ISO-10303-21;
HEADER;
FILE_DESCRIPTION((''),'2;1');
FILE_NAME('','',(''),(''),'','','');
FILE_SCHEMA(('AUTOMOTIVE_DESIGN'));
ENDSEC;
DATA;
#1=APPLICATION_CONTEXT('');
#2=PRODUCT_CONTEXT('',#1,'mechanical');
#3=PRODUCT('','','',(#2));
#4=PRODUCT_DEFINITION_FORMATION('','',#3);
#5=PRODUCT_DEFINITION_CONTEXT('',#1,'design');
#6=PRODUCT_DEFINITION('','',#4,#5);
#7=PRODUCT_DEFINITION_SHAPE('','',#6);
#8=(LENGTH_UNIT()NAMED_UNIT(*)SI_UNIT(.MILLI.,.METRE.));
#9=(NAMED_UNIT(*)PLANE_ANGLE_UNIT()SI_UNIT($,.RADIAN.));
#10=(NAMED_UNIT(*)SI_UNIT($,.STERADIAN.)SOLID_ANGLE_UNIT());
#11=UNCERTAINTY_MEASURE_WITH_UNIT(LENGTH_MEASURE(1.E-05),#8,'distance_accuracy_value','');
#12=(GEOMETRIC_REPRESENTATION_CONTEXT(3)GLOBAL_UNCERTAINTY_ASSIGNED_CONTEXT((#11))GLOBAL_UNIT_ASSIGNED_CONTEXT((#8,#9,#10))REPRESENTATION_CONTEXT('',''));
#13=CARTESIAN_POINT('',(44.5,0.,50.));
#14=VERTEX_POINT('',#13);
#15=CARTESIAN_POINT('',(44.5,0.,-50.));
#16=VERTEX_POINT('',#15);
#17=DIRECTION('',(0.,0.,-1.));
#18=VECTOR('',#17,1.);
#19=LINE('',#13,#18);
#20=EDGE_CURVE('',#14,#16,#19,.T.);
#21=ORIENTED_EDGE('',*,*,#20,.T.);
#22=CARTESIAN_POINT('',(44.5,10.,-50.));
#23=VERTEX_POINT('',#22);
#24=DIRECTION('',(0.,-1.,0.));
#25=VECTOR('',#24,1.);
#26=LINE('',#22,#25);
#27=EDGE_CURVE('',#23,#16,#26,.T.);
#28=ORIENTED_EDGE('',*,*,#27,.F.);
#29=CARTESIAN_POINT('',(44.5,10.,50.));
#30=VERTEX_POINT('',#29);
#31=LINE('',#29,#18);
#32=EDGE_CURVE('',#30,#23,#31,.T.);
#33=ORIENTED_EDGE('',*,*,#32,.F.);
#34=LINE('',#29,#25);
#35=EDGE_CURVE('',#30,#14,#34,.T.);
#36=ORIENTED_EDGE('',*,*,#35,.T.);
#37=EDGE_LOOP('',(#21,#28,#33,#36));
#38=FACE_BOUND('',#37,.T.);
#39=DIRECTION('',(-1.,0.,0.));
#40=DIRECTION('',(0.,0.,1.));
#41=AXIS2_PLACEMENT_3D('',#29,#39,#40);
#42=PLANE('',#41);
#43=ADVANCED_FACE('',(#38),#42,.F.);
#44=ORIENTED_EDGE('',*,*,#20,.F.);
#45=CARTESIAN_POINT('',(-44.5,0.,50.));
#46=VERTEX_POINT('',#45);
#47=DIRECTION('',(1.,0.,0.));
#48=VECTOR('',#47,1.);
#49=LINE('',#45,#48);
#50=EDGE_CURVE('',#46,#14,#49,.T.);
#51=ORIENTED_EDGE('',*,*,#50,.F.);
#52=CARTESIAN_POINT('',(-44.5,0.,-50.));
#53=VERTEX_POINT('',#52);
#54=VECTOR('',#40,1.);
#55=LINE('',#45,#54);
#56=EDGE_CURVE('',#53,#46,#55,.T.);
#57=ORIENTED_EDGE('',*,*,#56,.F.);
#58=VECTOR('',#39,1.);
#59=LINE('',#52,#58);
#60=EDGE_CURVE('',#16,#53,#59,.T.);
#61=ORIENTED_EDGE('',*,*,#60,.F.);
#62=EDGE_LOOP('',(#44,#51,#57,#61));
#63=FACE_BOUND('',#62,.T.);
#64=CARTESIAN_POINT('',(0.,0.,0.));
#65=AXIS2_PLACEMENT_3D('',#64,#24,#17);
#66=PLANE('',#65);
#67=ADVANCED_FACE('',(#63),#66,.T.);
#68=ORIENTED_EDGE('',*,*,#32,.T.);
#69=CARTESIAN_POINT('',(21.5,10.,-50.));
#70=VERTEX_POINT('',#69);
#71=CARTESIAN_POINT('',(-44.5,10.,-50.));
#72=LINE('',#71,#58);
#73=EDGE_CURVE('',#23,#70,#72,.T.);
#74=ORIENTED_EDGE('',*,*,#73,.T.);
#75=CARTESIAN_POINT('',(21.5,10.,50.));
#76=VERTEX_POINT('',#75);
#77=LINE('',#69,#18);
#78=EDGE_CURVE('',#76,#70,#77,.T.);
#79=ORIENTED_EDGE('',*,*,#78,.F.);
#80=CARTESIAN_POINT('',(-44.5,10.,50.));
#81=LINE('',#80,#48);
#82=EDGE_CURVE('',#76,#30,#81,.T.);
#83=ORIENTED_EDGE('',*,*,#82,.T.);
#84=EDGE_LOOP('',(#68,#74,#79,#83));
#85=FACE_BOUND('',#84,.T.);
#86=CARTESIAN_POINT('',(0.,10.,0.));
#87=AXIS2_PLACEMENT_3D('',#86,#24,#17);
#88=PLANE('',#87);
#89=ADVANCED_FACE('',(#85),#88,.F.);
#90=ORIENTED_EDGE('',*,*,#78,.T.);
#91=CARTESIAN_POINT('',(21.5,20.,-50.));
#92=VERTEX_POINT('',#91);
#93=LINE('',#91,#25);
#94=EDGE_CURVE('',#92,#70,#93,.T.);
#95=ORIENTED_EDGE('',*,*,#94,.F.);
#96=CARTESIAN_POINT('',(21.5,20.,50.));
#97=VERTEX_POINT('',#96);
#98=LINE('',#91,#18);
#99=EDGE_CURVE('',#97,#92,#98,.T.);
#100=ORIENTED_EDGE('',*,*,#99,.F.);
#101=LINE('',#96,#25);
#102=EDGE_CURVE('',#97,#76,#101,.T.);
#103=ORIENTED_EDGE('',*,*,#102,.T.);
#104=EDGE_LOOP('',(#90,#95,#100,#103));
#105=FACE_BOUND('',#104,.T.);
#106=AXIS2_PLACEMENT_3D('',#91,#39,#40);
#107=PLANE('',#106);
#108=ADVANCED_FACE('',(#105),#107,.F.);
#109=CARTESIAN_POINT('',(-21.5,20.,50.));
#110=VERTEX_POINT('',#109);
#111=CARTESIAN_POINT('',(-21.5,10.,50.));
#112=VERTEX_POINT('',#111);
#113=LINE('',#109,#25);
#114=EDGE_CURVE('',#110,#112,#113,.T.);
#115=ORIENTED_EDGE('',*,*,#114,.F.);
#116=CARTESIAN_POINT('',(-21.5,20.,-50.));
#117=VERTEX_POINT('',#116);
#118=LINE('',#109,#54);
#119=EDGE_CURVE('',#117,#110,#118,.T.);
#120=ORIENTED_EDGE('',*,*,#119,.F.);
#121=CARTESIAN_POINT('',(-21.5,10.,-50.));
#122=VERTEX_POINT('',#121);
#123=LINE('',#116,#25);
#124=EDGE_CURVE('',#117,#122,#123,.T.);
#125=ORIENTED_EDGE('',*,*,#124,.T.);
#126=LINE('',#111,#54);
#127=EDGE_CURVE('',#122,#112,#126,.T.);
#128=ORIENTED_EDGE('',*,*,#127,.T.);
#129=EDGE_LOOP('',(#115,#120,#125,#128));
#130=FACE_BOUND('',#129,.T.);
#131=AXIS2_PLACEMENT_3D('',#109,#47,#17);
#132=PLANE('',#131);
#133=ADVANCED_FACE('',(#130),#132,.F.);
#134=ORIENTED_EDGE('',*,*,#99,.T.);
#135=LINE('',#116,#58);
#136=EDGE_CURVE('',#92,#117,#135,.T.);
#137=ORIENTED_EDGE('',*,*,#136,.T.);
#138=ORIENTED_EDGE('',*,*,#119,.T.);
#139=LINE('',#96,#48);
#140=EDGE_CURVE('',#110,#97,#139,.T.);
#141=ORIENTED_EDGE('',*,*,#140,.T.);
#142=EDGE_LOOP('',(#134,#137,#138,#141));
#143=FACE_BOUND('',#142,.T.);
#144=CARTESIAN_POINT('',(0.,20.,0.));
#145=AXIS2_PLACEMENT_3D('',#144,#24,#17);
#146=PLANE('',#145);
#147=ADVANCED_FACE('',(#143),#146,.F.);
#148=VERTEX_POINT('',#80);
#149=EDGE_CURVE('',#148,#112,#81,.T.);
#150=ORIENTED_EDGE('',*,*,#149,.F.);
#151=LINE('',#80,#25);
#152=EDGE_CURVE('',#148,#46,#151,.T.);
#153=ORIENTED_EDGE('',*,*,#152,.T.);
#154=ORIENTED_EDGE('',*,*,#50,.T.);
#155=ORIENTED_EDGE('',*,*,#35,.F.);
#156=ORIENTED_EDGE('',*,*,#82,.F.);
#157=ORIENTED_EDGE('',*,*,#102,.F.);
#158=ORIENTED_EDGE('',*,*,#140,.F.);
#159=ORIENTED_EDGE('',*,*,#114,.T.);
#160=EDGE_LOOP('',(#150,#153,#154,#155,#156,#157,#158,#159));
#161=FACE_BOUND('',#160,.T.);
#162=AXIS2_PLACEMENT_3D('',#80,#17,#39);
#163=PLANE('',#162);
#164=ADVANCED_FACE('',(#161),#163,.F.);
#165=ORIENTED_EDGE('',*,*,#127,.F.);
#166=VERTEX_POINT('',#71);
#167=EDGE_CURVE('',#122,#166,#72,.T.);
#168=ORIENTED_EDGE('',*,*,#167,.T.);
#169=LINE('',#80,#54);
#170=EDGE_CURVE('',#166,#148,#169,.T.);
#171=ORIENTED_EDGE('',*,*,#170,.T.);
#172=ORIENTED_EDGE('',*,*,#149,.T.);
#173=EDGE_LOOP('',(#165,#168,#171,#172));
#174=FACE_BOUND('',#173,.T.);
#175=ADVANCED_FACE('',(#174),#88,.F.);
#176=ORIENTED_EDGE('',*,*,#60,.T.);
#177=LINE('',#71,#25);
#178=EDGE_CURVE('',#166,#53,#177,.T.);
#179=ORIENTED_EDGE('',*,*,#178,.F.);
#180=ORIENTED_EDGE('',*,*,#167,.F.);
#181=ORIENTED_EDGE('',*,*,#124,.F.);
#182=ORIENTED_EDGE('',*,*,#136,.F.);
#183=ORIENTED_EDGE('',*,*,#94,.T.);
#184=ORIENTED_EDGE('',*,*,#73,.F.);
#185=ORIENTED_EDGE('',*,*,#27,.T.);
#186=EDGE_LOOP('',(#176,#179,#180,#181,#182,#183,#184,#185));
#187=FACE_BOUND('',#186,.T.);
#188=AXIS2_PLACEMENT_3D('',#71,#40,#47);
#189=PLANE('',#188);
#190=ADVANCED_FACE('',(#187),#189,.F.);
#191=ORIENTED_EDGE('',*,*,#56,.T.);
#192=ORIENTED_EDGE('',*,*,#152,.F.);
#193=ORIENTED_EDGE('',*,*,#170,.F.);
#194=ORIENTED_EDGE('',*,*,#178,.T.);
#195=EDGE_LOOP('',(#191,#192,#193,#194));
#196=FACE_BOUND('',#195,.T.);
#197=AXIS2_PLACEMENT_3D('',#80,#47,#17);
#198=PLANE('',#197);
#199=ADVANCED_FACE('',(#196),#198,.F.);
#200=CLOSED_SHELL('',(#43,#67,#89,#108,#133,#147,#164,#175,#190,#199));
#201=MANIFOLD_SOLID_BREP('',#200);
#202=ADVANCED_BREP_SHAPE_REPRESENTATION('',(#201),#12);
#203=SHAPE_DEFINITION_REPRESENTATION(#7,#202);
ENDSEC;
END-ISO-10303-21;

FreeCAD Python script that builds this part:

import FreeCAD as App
import Part
import Sketcher
from FreeCAD import Vector
Q = App.Units.Quantity


def add_polygon(sketch, points):
    """Adds a closed chain of lines whose ends are joined by coincident constraints."""
    first, n = sketch.GeometryCount, len(points)
    for a, b in zip(points, points[1:] + points[:1]):
        sketch.addGeometry(Part.LineSegment(App.Vector(*a, 0), App.Vector(*b, 0)), False)
    for i in range(n):
        sketch.addConstraint(Sketcher.Constraint("Coincident", first + i, 2, first + (i + 1) % n, 1))

doc = App.newDocument("Part")
body = doc.addObject("PartDesign::Body", "Body")

# Sketch on XZ plane
sketch1 = body.newObject("Sketcher::SketchObject", "Sketch")
sketch1.AttachmentSupport = (doc.getObject("XZ_Plane"), [""])
sketch1.MapMode = "FlatFace"
add_polygon(sketch1, [(-44, -50), (-44, 50), (44, 50), (44, -50)])  # lines 0-3
sketch1.addConstraint([
    Sketcher.Constraint("Vertical", 0),
    Sketcher.Constraint("Horizontal", 1),
    Sketcher.Constraint("Vertical", 2),
    Sketcher.Constraint("Horizontal", 3),
    Sketcher.Constraint("Symmetric", 0, 2, 2, 2, -1, 1),
    Sketcher.Constraint("DistanceX", 1, 1, 1, 2, Q("89 mm")),
    Sketcher.Constraint("DistanceY", 0, 1, 0, 2, Q("100 mm")),
])
pad1 = body.newObject("PartDesign::Pad", "Pad")
pad1.Profile = sketch1
pad1.Length = 10
pad1.Reversed = True

# Sketch on XZ plane
sketch2 = body.newObject("Sketcher::SketchObject", "Sketch001")
sketch2.AttachmentSupport = (doc.getObject("XZ_Plane"), [""])
sketch2.MapMode = "FlatFace"
sketch2.AttachmentOffset = App.Placement(Vector(0, 0, -10), App.Rotation())
add_polygon(sketch2, [(22, -50), (-22, -50), (-22, 50), (22, 50)])  # lines 0-3
sketch2.addConstraint([
    Sketcher.Constraint("Horizontal", 0),
    Sketcher.Constraint("Vertical", 1),
    Sketcher.Constraint("Horizontal", 2),
    Sketcher.Constraint("Vertical", 3),
    Sketcher.Constraint("Symmetric", 0, 2, 2, 2, -1, 1),
    Sketcher.Constraint("DistanceX", 0, 2, 0, 1, Q("43 mm")),
    Sketcher.Constraint("DistanceY", 1, 1, 1, 2, Q("100 mm")),
])
pad2 = body.newObject("PartDesign::Pad", "Pad001")
pad2.Profile = sketch2
pad2.Length = 10
pad2.Reversed = True

doc.recompute()
